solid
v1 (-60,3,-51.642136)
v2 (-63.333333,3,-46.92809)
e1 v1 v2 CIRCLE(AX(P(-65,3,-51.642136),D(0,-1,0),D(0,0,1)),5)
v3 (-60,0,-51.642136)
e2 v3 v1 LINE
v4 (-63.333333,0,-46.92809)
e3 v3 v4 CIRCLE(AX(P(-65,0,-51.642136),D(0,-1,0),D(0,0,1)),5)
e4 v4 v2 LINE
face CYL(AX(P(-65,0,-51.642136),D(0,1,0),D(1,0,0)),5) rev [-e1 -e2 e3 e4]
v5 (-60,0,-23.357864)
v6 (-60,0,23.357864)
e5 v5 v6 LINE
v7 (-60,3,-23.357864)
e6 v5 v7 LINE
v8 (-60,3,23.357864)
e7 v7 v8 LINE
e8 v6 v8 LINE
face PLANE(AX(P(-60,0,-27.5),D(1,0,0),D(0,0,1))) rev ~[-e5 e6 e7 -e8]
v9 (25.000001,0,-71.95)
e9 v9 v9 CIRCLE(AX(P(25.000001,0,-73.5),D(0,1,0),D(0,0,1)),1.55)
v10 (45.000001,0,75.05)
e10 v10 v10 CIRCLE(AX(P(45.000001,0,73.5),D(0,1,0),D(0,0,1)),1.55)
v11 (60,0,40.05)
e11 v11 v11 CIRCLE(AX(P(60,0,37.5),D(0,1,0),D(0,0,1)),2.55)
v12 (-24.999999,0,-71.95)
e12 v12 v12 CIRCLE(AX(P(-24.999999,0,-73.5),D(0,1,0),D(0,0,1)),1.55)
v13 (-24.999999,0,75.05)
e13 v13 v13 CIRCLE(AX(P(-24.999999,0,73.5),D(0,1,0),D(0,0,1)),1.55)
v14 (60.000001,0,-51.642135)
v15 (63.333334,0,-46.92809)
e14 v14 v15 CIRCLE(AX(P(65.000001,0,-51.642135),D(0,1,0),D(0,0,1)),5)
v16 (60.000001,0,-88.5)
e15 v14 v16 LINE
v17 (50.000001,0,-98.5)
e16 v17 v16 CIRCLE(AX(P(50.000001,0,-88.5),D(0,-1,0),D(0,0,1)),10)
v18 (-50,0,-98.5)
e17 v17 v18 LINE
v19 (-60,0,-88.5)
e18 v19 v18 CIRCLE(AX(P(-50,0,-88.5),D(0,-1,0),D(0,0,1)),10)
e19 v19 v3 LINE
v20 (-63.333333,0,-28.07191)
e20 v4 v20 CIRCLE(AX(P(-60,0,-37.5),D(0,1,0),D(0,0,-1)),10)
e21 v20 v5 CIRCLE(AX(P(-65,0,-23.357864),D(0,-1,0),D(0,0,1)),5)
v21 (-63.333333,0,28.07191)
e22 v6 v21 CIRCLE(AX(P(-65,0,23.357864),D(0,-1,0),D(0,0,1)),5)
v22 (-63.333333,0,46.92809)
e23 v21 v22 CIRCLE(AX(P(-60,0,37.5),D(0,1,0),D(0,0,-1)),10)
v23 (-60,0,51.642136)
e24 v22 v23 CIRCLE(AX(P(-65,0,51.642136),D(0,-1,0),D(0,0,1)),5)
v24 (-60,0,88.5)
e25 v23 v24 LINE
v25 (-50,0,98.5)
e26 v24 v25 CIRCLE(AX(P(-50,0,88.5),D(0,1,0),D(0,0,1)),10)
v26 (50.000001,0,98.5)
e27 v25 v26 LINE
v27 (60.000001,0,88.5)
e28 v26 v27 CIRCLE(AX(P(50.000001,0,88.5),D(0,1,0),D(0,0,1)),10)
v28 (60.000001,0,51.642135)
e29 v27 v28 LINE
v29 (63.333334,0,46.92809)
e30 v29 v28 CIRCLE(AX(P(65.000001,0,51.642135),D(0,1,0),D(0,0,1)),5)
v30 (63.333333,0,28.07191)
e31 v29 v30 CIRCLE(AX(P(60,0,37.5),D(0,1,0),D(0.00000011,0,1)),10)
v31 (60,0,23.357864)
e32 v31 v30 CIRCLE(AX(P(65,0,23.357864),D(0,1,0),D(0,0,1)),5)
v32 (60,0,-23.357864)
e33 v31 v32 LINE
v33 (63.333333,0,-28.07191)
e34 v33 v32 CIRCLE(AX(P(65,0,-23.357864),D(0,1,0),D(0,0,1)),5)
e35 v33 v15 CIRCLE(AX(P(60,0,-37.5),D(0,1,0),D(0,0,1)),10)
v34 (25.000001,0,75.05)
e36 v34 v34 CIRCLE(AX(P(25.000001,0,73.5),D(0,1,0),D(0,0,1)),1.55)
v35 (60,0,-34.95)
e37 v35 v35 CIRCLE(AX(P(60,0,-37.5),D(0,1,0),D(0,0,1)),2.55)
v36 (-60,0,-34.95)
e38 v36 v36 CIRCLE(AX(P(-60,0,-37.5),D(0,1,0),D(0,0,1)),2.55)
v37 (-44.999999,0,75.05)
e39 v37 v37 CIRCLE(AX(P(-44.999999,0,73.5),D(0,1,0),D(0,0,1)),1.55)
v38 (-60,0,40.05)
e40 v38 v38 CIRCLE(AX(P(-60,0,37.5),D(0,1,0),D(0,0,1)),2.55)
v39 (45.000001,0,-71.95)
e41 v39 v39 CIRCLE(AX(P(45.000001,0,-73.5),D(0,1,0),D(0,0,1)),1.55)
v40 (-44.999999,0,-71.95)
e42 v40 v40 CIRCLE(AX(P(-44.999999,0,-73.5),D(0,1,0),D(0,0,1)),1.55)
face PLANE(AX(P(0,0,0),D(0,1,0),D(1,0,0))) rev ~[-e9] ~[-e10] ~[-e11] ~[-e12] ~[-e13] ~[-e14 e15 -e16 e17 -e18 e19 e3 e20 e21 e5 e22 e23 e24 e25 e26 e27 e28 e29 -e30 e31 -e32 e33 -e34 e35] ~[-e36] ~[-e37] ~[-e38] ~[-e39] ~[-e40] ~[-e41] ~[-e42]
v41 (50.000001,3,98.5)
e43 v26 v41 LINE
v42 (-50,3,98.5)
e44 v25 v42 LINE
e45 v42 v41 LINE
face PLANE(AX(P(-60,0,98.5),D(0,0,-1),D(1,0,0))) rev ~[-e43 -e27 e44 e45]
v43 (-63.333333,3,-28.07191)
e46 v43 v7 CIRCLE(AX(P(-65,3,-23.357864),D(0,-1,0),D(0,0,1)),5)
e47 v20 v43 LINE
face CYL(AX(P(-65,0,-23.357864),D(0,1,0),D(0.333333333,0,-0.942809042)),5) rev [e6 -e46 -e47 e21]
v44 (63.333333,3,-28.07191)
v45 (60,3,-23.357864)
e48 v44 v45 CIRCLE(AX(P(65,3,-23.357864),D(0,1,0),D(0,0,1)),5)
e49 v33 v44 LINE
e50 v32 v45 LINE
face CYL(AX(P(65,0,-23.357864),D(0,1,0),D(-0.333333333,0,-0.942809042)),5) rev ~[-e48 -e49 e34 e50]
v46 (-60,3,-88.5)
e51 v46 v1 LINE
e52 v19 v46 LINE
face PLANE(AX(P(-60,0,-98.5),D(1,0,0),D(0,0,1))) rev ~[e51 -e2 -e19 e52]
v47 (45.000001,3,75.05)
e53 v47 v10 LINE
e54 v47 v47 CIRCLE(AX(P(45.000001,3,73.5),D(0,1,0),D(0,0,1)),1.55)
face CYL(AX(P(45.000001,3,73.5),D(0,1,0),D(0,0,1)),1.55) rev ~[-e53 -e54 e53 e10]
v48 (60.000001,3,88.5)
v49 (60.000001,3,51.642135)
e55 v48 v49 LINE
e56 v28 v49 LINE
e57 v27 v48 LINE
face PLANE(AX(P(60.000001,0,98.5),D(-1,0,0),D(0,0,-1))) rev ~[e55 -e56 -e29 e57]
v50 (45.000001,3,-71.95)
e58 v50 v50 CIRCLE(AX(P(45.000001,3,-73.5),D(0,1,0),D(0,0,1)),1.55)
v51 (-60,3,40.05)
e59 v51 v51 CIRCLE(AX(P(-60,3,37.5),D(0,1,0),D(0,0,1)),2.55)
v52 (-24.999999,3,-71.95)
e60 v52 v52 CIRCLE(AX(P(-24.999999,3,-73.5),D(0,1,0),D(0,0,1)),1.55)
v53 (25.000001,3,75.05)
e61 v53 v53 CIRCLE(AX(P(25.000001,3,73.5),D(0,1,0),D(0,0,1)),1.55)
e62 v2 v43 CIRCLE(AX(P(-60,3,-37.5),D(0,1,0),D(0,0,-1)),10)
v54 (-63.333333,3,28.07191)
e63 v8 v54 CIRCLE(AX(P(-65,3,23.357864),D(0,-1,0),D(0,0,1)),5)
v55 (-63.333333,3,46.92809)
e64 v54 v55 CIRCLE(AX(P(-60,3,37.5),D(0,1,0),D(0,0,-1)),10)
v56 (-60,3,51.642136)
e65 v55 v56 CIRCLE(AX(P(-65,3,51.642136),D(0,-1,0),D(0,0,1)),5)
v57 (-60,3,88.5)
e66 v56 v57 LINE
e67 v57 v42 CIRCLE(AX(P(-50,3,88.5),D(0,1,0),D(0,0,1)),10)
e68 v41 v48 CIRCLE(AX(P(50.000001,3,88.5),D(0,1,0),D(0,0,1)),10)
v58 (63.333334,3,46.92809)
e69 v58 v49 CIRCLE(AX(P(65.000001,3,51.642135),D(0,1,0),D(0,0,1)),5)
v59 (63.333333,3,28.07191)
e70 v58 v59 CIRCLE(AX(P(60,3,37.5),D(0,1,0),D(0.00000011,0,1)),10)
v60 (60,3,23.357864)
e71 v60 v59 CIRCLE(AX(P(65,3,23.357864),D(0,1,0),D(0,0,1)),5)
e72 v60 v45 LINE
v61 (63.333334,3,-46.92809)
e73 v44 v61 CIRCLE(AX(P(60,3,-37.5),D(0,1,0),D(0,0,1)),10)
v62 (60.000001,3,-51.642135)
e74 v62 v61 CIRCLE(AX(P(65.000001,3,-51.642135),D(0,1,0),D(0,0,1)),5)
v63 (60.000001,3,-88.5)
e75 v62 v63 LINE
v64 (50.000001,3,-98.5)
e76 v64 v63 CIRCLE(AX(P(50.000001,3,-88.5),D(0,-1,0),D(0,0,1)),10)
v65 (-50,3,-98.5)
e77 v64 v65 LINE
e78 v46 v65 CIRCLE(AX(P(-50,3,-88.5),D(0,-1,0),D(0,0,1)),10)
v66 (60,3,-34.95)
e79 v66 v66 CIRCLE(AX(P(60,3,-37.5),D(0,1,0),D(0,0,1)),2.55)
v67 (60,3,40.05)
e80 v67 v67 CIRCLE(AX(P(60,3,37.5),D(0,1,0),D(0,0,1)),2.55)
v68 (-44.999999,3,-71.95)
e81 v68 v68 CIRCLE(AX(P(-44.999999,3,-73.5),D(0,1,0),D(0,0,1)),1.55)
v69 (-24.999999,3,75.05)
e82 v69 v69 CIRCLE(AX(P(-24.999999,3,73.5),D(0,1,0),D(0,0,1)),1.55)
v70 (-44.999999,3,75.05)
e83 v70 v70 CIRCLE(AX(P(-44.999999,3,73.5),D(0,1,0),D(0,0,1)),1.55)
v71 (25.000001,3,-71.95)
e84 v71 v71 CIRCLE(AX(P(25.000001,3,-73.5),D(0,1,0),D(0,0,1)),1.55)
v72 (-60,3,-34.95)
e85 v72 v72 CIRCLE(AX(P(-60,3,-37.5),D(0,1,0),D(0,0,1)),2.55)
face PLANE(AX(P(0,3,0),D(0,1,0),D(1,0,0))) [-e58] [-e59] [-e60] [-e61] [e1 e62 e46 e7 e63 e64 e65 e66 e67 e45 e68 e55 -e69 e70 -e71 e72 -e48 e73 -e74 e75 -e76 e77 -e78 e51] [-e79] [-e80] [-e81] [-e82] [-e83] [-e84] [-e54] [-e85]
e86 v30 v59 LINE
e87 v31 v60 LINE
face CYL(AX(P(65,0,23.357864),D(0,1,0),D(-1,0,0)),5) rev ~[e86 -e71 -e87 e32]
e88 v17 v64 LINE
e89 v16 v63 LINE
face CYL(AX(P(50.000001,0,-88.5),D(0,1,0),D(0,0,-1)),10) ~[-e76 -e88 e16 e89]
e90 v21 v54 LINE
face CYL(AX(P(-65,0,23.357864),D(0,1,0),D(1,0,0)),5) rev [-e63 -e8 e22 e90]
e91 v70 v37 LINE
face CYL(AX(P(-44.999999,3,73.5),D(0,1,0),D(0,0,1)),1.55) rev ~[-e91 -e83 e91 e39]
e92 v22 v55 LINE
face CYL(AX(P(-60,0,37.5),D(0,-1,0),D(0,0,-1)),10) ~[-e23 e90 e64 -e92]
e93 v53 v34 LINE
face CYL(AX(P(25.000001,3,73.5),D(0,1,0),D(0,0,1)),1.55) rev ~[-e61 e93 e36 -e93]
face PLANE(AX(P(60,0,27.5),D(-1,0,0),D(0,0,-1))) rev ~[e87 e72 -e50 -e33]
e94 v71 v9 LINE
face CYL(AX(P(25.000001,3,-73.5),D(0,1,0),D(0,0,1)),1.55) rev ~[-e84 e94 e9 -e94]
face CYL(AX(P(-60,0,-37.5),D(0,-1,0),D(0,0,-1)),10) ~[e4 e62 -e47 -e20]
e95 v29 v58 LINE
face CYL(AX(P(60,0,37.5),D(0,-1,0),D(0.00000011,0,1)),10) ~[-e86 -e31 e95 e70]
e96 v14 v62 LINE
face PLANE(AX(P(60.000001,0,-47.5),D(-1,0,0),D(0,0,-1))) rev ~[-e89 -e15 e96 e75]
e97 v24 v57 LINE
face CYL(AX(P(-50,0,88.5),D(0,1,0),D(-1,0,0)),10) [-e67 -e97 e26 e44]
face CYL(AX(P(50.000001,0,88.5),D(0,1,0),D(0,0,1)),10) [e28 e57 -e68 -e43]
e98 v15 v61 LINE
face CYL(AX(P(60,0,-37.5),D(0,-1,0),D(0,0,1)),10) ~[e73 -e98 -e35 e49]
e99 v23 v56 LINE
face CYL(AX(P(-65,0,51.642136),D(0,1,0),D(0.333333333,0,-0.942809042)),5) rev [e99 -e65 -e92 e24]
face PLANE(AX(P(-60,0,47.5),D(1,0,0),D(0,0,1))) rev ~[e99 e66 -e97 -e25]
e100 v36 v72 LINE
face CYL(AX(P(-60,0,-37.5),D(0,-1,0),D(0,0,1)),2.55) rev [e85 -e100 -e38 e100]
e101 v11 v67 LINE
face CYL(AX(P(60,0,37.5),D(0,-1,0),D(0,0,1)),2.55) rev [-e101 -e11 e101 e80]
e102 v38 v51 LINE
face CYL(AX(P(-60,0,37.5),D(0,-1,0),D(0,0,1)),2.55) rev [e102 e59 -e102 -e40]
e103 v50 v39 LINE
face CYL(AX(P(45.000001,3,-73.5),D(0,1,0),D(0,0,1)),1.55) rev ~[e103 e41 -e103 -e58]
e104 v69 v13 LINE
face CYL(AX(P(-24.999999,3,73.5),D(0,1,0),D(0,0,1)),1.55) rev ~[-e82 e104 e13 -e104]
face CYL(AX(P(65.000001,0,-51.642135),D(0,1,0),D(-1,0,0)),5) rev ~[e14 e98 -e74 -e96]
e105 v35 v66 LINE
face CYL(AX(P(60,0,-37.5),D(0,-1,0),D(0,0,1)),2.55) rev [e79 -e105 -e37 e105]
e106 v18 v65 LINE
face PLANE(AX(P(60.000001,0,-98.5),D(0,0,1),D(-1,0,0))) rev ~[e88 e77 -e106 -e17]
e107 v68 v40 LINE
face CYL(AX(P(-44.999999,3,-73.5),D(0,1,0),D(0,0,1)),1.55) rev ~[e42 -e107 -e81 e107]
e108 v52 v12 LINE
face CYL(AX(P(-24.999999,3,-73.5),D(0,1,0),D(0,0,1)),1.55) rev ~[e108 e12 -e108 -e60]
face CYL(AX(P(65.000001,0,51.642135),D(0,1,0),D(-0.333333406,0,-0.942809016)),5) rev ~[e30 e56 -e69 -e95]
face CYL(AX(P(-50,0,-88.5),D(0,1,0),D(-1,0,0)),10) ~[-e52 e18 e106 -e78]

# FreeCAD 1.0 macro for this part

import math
import FreeCAD as App
import Part
import Sketcher

V = App.Vector


def edges_at(feature, points):
    """Names of the edges that pass closest to the given points."""
    edges = feature.Shape.Edges
    near = lambda p: min(range(len(edges)), key=lambda i: edges[i].distToShape(Part.Vertex(*p))[0])
    return sorted({f"Edge{near(p) + 1}" for p in points})

doc = App.newDocument("Part")
body = doc.addObject("PartDesign::Body", "Body")

# Sketch on XZ plane
sketch1 = body.newObject("Sketcher::SketchObject", "Sketch")
sketch1.AttachmentSupport = (doc.getObject("XZ_Plane"), [""])
sketch1.MapMode = "FlatFace"
sketch1.addGeometry([
    Part.LineSegment(V(-60, -27.5, 0), V(-60, 27.5, 0)),  # 0
    Part.ArcOfCircle(Part.Circle(V(-60, 37.5, 0), V(0, 0, 1), 10), math.radians(90), math.radians(270)),  # 1
    Part.LineSegment(V(-60, 47.5, 0), V(-60, 98.5, 0)),  # 2
    Part.LineSegment(V(-60, 98.5, 0), V(60, 98.5, 0)),  # 3
    Part.LineSegment(V(60, 98.5, 0), V(60, 47.5, 0)),  # 4
    Part.ArcOfCircle(Part.Circle(V(60, 37.5, 0), V(0, 0, 1), 10), math.radians(-90), math.radians(90)),  # 5
    Part.LineSegment(V(60, 27.5, 0), V(60, -27.5, 0)),  # 6
    Part.ArcOfCircle(Part.Circle(V(60, -37.5, 0), V(0, 0, 1), 10), math.radians(-90), math.radians(90)),  # 7
    Part.LineSegment(V(60, -47.5, 0), V(60, -98.5, 0)),  # 8
    Part.LineSegment(V(60, -98.5, 0), V(-60, -98.5, 0)),  # 9
    Part.LineSegment(V(-60, -98.5, 0), V(-60, -47.5, 0)),  # 10
    Part.ArcOfCircle(Part.Circle(V(-60, -37.5, 0), V(0, 0, 1), 10), math.radians(90), math.radians(270)),  # 11
    Part.Circle(V(-60, 37.5, 0), V(0, 0, 1), 2.5),  # 12
    Part.Circle(V(60, 37.5, 0), V(0, 0, 1), 2.5),  # 13
    Part.Circle(V(-60, -37.5, 0), V(0, 0, 1), 2.5),  # 14
    Part.Circle(V(60, -37.5, 0), V(0, 0, 1), 2.5),  # 15
], False)
sketch1.addConstraint([
    Sketcher.Constraint("Coincident", 0, 2, 1, 2),
    Sketcher.Constraint("Coincident", 1, 1, 2, 1),
    Sketcher.Constraint("Coincident", 2, 2, 3, 1),
    Sketcher.Constraint("Coincident", 3, 2, 4, 1),
    Sketcher.Constraint("Coincident", 4, 2, 5, 2),
    Sketcher.Constraint("Coincident", 5, 1, 6, 1),
    Sketcher.Constraint("Coincident", 6, 2, 7, 2),
    Sketcher.Constraint("Coincident", 7, 1, 8, 1),
    Sketcher.Constraint("Coincident", 8, 2, 9, 1),
    Sketcher.Constraint("Coincident", 9, 2, 10, 1),
    Sketcher.Constraint("Coincident", 10, 2, 11, 2),
    Sketcher.Constraint("Coincident", 11, 1, 0, 1),
    Sketcher.Constraint("Vertical", 0),
    Sketcher.Constraint("Vertical", 2),
    Sketcher.Constraint("Horizontal", 3),
    Sketcher.Constraint("Vertical", 4),
    Sketcher.Constraint("Vertical", 6),
    Sketcher.Constraint("Vertical", 8),
    Sketcher.Constraint("Horizontal", 9),
    Sketcher.Constraint("Vertical", 10),
    Sketcher.Constraint("Coincident", 12, 3, 1, 3),
    Sketcher.Constraint("Coincident", 13, 3, 5, 3),
    Sketcher.Constraint("Coincident", 14, 3, 11, 3),
    Sketcher.Constraint("Coincident", 15, 3, 7, 3),
    Sketcher.Constraint("Equal", 1, 5),
    Sketcher.Constraint("Equal", 5, 7),
    Sketcher.Constraint("Equal", 7, 11),
    Sketcher.Constraint("Equal", 12, 13),
    Sketcher.Constraint("Equal", 13, 14),
    Sketcher.Constraint("Equal", 14, 15),
    Sketcher.Constraint("Symmetric", 1, 3, 7, 3, -1, 1),
    Sketcher.Constraint("Symmetric", 5, 3, 11, 3, -1, 1),
    Sketcher.Constraint("Symmetric", 2, 2, 8, 2, -1, 1),
    Sketcher.Constraint("Symmetric", 1, 3, 5, 3, -2),
    Sketcher.Constraint("Vertical", 14, 3, 0, 2),
    Sketcher.Constraint("Vertical", 0, 2, 1, 1),
    Sketcher.Constraint("Vertical", 15, 3, 3, 2),
    Sketcher.Constraint("Vertical", 4, 2, 5, 1),
    Sketcher.Constraint("Vertical", 2, 2, 9, 2),
    Sketcher.Constraint("Radius", 1, 10.0),
    Sketcher.Constraint("Diameter", 12, 5.1),
    Sketcher.Constraint("DistanceX", 3, 1, 3, 2, 120.000001),
    Sketcher.Constraint("DistanceY", 0, 1, 0, 2, 55.0),
    Sketcher.Constraint("DistanceY", 2, 1, 2, 2, 51.0),
])
pad1 = body.newObject("PartDesign::Pad", "Pad")
pad1.Profile = sketch1
pad1.Length = 3
pad1.Reversed = True

# Sketch on XZ plane
sketch2 = body.newObject("Sketcher::SketchObject", "Sketch001")
sketch2.AttachmentSupport = (doc.getObject("XZ_Plane"), [""])
sketch2.MapMode = "FlatFace"
sketch2.AttachmentOffset = App.Placement(V(0, 0, -3), App.Rotation())
sketch2.addGeometry([
    Part.Circle(V(-45, -73.5, 0), V(0, 0, 1), 1.6),  # 0
    Part.Circle(V(-25, -73.5, 0), V(0, 0, 1), 1.6),  # 1
    Part.Circle(V(25, -73.5, 0), V(0, 0, 1), 1.6),  # 2
    Part.Circle(V(45, -73.5, 0), V(0, 0, 1), 1.6),  # 3
    Part.Circle(V(-45, 73.5, 0), V(0, 0, 1), 1.6),  # 4
    Part.Circle(V(-25, 73.5, 0), V(0, 0, 1), 1.6),  # 5
    Part.Circle(V(25, 73.5, 0), V(0, 0, 1), 1.6),  # 6
    Part.Circle(V(45, 73.5, 0), V(0, 0, 1), 1.6),  # 7
], False)
sketch2.addConstraint([
    Sketcher.Constraint("Equal", 0, 1),
    Sketcher.Constraint("Equal", 1, 2),
    Sketcher.Constraint("Equal", 2, 3),
    Sketcher.Constraint("Equal", 3, 4),
    Sketcher.Constraint("Equal", 4, 5),
    Sketcher.Constraint("Equal", 5, 6),
    Sketcher.Constraint("Equal", 6, 7),
    Sketcher.Constraint("Symmetric", 3, 3, 4, 3, -1, 1),
    Sketcher.Constraint("Symmetric", 2, 3, 5, 3, -1, 1),
    Sketcher.Constraint("Symmetric", 1, 3, 6, 3, -1, 1),
    Sketcher.Constraint("Symmetric", 0, 3, 7, 3, -1, 1),
    Sketcher.Constraint("Symmetric", 1, 3, 2, 3, -2),
    Sketcher.Constraint("Symmetric", 0, 3, 3, 3, -2),
    Sketcher.Constraint("Horizontal", 0, 3, 1, 3),
    Sketcher.Constraint("Diameter", 0, 3.1),
    Sketcher.Constraint("DistanceX", 0, 3, -1, 1, 44.999999),
    Sketcher.Constraint("DistanceX", 1, 3, -1, 1, 24.999999),
    Sketcher.Constraint("DistanceY", 0, 3, 4, 3, 147.0),
])
pocket1 = body.newObject("PartDesign::Pocket", "Pocket")
pocket1.Profile = sketch2
pocket1.Length = 3
pocket1.Reversed = True
doc.recompute()

fillet = body.newObject("PartDesign::Fillet", "Fillet")
fillet.Base = (pocket1, edges_at(pocket1, [
    (-60, 1.5, -98.5),
    (60, 1.5, -98.5),
    (60, 1.5, 98.5),
    (-60, 1.5, 98.5),
]))
fillet.Radius = 10
doc.recompute()

fillet2 = body.newObject("PartDesign::Fillet", "Fillet001")
fillet2.Base = (fillet, edges_at(fillet, [
    (-60, 1.5, -47.5),
    (60, 1.5, -47.5),
    (60, 1.5, -27.5),
    (60, 1.5, 27.5),
    (60, 1.5, 47.5),
    (-60, 1.5, 47.5),
    (-60, 1.5, 27.5),
    (-60, 1.5, -27.5),
]))
fillet2.Radius = 5

doc.recompute()
